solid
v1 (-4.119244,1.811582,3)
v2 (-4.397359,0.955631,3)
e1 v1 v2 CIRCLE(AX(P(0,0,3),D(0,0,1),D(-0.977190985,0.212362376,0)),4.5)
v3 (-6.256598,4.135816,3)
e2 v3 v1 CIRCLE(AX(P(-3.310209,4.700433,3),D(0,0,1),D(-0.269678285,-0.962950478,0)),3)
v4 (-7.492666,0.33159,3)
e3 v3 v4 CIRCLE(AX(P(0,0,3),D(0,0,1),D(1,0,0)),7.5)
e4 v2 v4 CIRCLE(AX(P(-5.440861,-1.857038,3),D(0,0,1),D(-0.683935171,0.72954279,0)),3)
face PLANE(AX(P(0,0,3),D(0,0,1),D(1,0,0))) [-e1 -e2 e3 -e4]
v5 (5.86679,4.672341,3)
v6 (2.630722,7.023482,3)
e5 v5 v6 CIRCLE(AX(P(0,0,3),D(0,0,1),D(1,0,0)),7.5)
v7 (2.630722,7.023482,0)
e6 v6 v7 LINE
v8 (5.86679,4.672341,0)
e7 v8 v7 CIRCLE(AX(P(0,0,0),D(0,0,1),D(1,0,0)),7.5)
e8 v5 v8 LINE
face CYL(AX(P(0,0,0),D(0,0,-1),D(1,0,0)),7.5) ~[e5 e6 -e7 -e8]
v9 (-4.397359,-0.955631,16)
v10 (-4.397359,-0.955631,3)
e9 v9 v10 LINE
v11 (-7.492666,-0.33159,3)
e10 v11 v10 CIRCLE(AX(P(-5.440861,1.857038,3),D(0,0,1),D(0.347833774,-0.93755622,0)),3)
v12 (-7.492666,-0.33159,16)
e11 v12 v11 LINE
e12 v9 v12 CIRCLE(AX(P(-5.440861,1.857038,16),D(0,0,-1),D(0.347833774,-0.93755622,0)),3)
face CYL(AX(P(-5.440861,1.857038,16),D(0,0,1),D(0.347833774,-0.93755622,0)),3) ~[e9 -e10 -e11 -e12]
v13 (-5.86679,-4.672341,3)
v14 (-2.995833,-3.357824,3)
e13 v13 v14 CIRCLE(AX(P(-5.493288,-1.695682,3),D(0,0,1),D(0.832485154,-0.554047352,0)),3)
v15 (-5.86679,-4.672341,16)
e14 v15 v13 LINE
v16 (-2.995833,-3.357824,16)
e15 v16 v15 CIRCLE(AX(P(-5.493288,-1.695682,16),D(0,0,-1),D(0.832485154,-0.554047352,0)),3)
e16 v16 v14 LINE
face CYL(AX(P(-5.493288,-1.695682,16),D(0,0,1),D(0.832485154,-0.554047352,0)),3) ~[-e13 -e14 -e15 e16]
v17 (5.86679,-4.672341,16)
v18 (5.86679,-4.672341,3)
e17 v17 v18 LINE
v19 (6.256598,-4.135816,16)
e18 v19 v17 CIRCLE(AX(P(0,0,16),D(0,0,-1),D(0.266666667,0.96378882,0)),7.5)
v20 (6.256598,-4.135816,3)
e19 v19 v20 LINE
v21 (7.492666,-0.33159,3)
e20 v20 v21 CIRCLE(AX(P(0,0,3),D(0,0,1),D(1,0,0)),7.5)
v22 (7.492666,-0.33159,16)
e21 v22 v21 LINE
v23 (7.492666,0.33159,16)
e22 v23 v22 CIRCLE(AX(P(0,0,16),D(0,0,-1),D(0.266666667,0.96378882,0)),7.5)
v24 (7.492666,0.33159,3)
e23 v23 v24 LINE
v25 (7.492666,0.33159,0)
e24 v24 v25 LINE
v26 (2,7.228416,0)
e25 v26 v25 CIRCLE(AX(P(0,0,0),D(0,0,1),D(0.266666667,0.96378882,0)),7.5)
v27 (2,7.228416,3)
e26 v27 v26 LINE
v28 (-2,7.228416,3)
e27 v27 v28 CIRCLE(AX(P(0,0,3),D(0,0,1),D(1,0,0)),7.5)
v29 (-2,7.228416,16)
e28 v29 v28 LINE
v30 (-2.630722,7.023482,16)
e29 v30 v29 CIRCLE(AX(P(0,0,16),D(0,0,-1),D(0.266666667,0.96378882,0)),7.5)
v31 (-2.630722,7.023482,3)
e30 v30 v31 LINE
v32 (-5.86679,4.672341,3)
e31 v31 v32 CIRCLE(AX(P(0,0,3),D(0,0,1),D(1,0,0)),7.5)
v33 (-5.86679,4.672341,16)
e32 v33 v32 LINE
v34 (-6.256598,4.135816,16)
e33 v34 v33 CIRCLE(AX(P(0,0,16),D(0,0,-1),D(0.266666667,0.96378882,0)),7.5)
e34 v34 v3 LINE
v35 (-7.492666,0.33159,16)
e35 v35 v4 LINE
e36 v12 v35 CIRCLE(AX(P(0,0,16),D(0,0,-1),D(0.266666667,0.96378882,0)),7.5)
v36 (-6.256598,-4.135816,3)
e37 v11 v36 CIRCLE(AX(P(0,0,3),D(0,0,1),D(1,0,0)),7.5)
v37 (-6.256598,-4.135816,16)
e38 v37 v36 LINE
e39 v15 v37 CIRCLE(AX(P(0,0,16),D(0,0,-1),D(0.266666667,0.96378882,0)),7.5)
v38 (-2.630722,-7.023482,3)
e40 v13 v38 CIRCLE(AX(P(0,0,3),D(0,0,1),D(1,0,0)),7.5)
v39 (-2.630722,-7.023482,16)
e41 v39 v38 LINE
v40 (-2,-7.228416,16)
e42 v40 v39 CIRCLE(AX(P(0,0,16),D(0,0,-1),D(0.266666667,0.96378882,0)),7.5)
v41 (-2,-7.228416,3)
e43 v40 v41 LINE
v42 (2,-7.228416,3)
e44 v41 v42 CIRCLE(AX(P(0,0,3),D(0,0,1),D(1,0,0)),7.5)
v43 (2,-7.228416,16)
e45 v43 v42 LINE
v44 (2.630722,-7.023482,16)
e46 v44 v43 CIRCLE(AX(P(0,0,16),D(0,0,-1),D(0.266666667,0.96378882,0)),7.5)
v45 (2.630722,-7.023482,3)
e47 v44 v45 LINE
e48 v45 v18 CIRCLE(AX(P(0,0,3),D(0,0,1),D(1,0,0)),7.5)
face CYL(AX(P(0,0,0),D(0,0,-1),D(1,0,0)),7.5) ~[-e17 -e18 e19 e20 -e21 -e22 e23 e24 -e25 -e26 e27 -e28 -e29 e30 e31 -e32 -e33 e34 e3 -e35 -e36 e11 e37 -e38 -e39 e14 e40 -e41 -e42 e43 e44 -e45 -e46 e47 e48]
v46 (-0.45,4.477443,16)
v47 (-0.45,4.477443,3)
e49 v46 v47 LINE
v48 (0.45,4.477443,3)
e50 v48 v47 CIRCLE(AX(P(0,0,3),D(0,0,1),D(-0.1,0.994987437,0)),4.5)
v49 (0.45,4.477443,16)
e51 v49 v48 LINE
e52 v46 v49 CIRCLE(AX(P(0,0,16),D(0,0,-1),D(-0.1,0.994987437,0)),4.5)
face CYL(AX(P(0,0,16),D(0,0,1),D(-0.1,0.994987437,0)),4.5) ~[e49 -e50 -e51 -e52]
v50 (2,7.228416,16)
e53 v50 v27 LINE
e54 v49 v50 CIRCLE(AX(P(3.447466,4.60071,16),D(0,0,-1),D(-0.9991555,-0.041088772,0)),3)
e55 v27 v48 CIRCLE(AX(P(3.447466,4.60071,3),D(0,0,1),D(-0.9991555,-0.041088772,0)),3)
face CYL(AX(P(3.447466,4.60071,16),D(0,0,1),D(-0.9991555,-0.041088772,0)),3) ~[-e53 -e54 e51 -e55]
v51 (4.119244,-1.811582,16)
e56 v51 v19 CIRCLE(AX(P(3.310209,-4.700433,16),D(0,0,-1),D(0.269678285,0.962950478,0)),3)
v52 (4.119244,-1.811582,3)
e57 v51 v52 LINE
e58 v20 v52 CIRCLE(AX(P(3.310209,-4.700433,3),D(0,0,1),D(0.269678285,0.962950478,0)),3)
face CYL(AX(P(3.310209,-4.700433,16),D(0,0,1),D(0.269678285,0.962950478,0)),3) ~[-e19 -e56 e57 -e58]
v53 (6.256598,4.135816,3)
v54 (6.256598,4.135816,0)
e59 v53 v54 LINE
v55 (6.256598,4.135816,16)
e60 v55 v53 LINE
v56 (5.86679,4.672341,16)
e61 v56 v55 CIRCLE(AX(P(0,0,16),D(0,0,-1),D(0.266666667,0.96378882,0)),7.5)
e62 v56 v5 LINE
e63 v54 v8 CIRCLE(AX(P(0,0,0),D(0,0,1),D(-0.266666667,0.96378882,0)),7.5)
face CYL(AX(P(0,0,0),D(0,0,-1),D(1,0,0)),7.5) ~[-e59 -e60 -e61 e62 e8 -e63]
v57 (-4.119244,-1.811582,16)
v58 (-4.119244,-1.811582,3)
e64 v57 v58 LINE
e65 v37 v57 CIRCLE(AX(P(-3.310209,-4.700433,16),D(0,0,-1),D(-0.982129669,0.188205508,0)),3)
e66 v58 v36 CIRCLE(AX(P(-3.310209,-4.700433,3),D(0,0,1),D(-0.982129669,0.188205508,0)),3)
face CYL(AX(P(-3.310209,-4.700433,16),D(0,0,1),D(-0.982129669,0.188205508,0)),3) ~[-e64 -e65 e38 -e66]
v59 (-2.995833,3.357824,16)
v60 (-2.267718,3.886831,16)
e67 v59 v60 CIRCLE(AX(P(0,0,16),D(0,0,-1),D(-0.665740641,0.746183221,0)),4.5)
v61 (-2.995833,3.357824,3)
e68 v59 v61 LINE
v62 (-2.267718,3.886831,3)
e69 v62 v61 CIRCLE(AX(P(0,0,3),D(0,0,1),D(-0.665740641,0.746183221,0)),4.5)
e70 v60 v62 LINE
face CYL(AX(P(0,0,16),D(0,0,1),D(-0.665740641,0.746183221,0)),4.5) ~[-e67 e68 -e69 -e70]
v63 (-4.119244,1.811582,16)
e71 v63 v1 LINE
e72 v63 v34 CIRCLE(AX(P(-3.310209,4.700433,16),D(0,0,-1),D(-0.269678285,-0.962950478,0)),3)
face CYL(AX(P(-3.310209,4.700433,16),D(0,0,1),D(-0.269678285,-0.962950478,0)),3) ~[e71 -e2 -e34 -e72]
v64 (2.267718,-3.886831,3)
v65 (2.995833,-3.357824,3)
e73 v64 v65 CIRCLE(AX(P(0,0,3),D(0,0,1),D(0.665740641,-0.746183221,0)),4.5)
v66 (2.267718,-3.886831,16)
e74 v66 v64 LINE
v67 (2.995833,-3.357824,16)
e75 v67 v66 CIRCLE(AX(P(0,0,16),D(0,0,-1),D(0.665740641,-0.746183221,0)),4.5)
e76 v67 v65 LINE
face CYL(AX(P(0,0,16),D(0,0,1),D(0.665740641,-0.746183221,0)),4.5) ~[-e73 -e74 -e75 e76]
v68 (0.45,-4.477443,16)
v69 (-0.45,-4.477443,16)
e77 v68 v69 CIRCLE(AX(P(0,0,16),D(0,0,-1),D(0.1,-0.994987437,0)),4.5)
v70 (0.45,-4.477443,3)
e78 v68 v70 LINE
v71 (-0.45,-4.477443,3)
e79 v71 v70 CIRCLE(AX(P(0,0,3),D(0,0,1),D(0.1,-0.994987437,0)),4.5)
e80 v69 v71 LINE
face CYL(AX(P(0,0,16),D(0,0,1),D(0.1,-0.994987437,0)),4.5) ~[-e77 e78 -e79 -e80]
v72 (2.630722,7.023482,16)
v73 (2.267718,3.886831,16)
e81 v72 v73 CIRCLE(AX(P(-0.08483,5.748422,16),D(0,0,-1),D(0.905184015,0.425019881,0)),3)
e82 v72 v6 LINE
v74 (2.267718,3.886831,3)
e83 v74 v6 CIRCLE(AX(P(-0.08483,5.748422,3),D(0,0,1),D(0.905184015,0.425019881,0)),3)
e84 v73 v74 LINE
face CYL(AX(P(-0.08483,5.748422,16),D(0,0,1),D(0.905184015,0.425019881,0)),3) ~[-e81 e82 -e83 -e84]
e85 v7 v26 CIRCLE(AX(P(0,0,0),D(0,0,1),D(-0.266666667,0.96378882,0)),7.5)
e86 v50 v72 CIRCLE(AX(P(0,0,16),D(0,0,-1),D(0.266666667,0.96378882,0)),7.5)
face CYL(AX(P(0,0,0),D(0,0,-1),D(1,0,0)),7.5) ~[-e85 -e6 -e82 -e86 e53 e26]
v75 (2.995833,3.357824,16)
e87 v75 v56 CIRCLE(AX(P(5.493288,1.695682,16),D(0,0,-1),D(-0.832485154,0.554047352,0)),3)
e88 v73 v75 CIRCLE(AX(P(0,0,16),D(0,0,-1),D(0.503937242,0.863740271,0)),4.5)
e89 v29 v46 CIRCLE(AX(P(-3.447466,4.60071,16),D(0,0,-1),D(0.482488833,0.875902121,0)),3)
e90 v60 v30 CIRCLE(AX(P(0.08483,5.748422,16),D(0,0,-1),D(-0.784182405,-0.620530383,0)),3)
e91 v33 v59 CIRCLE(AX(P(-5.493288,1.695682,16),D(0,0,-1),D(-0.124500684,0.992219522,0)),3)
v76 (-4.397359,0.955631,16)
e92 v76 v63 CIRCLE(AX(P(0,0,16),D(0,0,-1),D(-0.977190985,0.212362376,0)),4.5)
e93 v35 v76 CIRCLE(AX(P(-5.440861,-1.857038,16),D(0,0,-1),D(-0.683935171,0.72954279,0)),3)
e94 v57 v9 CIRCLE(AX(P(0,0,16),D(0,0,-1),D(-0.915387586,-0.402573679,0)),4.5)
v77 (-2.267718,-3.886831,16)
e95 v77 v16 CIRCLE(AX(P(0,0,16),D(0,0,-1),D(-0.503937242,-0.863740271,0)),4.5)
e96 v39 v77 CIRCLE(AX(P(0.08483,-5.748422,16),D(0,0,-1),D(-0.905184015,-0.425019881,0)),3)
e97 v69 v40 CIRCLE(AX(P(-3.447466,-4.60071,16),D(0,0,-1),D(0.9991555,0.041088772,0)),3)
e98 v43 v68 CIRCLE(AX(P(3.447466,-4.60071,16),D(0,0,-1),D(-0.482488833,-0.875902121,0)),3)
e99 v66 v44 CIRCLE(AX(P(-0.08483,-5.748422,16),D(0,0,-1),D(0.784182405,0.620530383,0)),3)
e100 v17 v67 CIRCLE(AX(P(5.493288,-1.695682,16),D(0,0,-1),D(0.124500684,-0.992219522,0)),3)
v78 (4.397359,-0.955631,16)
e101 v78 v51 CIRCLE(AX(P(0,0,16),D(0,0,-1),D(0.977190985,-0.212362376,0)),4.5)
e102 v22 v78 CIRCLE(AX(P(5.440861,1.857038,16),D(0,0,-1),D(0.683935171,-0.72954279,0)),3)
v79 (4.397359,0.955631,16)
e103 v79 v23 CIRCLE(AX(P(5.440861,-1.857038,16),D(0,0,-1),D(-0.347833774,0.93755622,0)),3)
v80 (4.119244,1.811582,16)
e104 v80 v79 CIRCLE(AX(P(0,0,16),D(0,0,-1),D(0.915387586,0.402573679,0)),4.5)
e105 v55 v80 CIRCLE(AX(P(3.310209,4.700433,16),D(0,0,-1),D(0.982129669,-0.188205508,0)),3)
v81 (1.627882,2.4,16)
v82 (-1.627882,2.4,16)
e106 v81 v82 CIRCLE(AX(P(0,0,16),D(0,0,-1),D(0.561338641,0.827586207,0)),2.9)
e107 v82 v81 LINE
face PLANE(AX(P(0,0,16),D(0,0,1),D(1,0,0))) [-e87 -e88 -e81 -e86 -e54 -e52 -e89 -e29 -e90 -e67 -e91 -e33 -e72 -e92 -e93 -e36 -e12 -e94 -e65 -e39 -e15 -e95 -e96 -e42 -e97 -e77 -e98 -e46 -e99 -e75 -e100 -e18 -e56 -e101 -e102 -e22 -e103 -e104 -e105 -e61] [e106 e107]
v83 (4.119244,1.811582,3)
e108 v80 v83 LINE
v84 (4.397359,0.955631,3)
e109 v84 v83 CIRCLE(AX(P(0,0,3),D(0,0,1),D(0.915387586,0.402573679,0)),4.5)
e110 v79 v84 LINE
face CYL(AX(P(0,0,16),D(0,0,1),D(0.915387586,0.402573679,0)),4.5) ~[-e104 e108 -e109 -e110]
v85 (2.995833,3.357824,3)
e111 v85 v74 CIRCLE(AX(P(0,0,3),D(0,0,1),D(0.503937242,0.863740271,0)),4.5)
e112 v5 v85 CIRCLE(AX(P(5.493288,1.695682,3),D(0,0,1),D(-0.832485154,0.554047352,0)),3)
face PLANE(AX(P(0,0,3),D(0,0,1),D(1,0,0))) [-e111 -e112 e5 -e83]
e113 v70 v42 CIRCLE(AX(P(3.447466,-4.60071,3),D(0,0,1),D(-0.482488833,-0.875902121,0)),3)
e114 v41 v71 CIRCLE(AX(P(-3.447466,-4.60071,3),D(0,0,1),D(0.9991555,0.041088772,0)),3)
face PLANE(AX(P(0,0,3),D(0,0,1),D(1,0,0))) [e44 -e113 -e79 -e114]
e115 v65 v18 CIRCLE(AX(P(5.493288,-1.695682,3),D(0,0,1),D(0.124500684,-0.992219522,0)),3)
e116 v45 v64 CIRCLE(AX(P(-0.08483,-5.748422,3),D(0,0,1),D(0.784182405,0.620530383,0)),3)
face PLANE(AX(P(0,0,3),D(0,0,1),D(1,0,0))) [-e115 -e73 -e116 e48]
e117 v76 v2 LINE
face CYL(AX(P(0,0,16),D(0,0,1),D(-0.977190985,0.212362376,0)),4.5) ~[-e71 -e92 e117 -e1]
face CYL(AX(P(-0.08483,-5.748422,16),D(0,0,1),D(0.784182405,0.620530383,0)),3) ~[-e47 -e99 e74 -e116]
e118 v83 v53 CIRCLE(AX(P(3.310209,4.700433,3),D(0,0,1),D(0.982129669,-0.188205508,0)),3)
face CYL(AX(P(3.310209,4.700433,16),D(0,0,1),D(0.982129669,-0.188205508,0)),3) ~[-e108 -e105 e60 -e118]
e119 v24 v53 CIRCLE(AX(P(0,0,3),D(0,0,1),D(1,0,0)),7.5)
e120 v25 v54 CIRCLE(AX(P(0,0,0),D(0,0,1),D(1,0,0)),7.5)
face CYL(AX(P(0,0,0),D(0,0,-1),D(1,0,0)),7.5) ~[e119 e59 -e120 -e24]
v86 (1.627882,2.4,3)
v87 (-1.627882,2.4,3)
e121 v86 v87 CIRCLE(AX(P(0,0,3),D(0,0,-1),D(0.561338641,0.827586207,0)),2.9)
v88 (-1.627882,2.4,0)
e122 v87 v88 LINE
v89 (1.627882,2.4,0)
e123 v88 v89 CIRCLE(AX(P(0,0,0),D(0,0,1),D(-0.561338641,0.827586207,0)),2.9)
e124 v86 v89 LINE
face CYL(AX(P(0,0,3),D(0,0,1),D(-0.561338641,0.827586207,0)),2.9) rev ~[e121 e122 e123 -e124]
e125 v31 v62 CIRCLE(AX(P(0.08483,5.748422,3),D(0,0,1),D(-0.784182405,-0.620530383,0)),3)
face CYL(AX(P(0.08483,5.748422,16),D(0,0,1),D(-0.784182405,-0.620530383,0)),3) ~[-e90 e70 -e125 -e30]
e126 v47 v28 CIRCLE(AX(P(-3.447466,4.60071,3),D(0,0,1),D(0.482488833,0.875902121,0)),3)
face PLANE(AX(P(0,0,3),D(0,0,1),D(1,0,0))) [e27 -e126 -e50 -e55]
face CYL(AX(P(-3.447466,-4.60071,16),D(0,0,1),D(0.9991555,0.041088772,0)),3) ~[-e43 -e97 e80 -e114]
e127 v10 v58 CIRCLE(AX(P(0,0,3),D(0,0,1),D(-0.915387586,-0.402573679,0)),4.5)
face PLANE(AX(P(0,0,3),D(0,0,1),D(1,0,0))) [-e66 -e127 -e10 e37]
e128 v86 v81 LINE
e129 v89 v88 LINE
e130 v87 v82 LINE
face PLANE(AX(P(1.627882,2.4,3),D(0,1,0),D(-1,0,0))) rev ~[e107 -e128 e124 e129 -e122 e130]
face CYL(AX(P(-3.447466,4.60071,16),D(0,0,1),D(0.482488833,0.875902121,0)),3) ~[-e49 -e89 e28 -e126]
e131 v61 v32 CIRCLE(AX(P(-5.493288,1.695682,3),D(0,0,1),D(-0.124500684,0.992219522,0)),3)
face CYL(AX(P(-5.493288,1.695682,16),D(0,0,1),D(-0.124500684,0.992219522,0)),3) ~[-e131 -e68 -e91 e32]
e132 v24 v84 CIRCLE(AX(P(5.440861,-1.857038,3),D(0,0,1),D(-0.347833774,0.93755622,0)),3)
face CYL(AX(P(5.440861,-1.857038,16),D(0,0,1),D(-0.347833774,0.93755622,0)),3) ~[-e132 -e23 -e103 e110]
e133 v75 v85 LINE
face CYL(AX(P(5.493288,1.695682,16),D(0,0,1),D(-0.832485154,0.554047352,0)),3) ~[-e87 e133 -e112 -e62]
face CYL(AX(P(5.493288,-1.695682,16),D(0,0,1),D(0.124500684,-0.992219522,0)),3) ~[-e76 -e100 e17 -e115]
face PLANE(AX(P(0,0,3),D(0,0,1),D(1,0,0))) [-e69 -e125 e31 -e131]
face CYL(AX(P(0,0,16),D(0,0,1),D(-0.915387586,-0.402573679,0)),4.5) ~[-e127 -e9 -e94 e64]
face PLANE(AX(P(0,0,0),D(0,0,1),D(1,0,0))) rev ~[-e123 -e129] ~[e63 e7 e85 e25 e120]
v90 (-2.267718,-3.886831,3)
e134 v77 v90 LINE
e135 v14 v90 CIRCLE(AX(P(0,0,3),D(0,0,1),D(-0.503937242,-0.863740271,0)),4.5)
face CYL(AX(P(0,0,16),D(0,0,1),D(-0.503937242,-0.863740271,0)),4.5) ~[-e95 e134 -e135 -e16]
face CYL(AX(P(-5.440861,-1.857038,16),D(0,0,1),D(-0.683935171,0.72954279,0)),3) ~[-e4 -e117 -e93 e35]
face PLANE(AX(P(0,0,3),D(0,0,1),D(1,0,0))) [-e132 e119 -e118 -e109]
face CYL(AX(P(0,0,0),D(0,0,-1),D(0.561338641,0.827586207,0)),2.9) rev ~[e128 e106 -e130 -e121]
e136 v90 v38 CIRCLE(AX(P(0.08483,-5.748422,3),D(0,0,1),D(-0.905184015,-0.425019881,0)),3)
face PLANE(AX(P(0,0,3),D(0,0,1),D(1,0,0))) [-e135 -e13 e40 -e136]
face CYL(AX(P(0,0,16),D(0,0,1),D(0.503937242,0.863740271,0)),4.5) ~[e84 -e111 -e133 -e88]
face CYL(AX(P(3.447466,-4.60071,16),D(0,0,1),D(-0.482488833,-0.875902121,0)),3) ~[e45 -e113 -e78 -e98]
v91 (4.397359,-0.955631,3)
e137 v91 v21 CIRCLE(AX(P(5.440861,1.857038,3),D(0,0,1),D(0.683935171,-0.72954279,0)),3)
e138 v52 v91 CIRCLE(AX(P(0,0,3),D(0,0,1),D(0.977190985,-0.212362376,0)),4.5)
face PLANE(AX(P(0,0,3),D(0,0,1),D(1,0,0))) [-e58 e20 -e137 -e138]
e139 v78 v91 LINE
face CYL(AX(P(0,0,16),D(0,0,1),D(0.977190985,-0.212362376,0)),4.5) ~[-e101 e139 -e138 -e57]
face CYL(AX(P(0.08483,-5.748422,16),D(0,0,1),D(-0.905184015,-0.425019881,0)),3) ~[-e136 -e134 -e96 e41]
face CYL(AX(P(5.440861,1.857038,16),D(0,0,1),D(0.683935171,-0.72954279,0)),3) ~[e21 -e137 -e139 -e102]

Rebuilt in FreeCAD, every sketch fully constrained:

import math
import FreeCAD as App
import Part
import Sketcher

doc = App.newDocument("Part")
params = doc.addObject("Spreadsheet::Sheet", "Params")
for row, (alias, value) in enumerate([
    ("sketch1_diameter", "15 mm"),
    ("sketch1_radius", "2.9 mm"),
    ("pad1_length", "16 mm"),
    ("sketch2_radius", "3 mm"),
    ("sketch2_radius2", "7.5 mm"),
    ("sketch2_radius3", "4.5 mm"),
    ("sketch3_diameter", "15 mm"),
    ("pad2_length", "3 mm"),
    ("sketch4_radius", "2.9 mm"),
], start=1):
    params.set(f"A{row}", alias)
    params.set(f"B{row}", "=" + value)
    params.setAlias(f"B{row}", alias)

body = doc.addObject("PartDesign::Body", "Body")

# Sketch on XY plane
sketch1 = doc.addObject("Sketcher::SketchObject", "Sketch")
body.addObject(sketch1)
sketch1.AttachmentSupport = (doc.XY_Plane, [""])
sketch1.MapMode = "FlatFace"
sketch1.addGeometry(Part.Circle(App.Vector(0, 0, 0), App.Vector(0, 0, 1), 7.5), False)
sketch1.addGeometry(Part.LineSegment(App.Vector(-1.6, 2.4, 0), App.Vector(1.6, 2.4, 0)), False)
sketch1.addGeometry(Part.ArcOfCircle(Part.Circle(App.Vector(0, 0, 0), App.Vector(0, 0, 1), 2.9), math.radians(124), math.radians(416)), False)
sketch1.addConstraint(Sketcher.Constraint("Coincident", 1, 1, 2, 1))
sketch1.addConstraint(Sketcher.Constraint("Coincident", 2, 2, 1, 2))
sketch1.addConstraint(Sketcher.Constraint("Horizontal", 1))
sketch1.addConstraint(Sketcher.Constraint("Coincident", 0, 3, -1, 1))
sketch1.addConstraint(Sketcher.Constraint("Coincident", 2, 3, -1, 1))
sketch1.addConstraint(Sketcher.Constraint("Diameter", 0, 15.0))
sketch1.addConstraint(Sketcher.Constraint("Radius", 2, 2.9))
sketch1.addConstraint(Sketcher.Constraint("DistanceY", -1, 1, 1, 1, 2.4))
sketch1.setExpression("Constraints[5]", "Params.sketch1_diameter")
sketch1.setExpression("Constraints[6]", "Params.sketch1_radius")
pad1 = doc.addObject("PartDesign::Pad", "Pad")
body.addObject(pad1)
pad1.Profile = sketch1
pad1.setExpression("Length", "Params.pad1_length")

# Sketch on XY plane
sketch2 = doc.addObject("Sketcher::SketchObject", "Sketch001")
body.addObject(sketch2)
sketch2.AttachmentSupport = (doc.XY_Plane, [""])
sketch2.MapMode = "FlatFace"
sketch2.AttachmentOffset = App.Placement(App.Vector(0, 0, 16), App.Rotation())
sketch2.addGeometry(Part.ArcOfCircle(Part.Circle(App.Vector(3.4, 4.6, 0), App.Vector(0, 0, 1), 3), math.radians(119), math.radians(182)), False)
sketch2.addGeometry(Part.ArcOfCircle(Part.Circle(App.Vector(0, 0, 0), App.Vector(0, 0, 1), 7.5), math.radians(75), math.radians(105)), False)
sketch2.addGeometry(Part.ArcOfCircle(Part.Circle(App.Vector(-3.4, 4.6, 0), App.Vector(0, 0, 1), 3), math.radians(-2), math.radians(61)), False)
sketch2.addGeometry(Part.ArcOfCircle(Part.Circle(App.Vector(0, 0, 0), App.Vector(0, 0, 1), 4.5), math.radians(84.26), math.radians(95.74)), False)
sketch2.addConstraint(Sketcher.Constraint("Coincident", 0, 1, 1, 1))
sketch2.addConstraint(Sketcher.Constraint("Coincident", 1, 2, 2, 2))
sketch2.addConstraint(Sketcher.Constraint("Coincident", 2, 1, 3, 2))
sketch2.addConstraint(Sketcher.Constraint("Coincident", 3, 1, 0, 2))
sketch2.addConstraint(Sketcher.Constraint("Coincident", 1, 3, -1, 1))
sketch2.addConstraint(Sketcher.Constraint("Coincident", 3, 3, -1, 1))
sketch2.addConstraint(Sketcher.Constraint("Equal", 0, 2))
sketch2.addConstraint(Sketcher.Constraint("Symmetric", 0, 3, 2, 3, -2))
sketch2.addConstraint(Sketcher.Constraint("Radius", 0, 3.0))
sketch2.addConstraint(Sketcher.Constraint("Radius", 1, 7.5))
sketch2.addConstraint(Sketcher.Constraint("Radius", 3, 4.5))
sketch2.addConstraint(Sketcher.Constraint("DistanceX", -1, 1, 0, 1, 2.0))
sketch2.addConstraint(Sketcher.Constraint("DistanceX", 2, 1, 3, 1, 0.9))
sketch2.setExpression("Constraints[8]", "Params.sketch2_radius")
sketch2.setExpression("Constraints[9]", "Params.sketch2_radius2")
sketch2.setExpression("Constraints[10]", "Params.sketch2_radius3")
pocket1 = doc.addObject("PartDesign::Pocket", "Pocket")
body.addObject(pocket1)
pocket1.Profile = sketch2
pocket1.Type = "ThroughAll"
doc.recompute()

polarpattern = doc.addObject("PartDesign::PolarPattern", "PolarPattern")
body.addObject(polarpattern)
polarpattern.Originals = [pocket1]
polarpattern.Axis = (doc.Z_Axis, [""])
polarpattern.Angle = 360
polarpattern.Occurrences = 10
body.Tip = polarpattern

# Sketch on XY plane
sketch3 = doc.addObject("Sketcher::SketchObject", "Sketch002")
body.addObject(sketch3)
sketch3.AttachmentSupport = (doc.XY_Plane, [""])
sketch3.MapMode = "FlatFace"
sketch3.addGeometry(Part.Circle(App.Vector(0, 0, 0), App.Vector(0, 0, 1), 8), False)
sketch3.addConstraint(Sketcher.Constraint("Coincident", 0, 3, -1, 1))
sketch3.addConstraint(Sketcher.Constraint("Diameter", 0, 15.0))
sketch3.setExpression("Constraints[1]", "Params.sketch3_diameter")
pad2 = doc.addObject("PartDesign::Pad", "Pad001")
body.addObject(pad2)
pad2.Profile = sketch3
pad2.setExpression("Length", "Params.pad2_length")

# Sketch on XY plane
sketch4 = doc.addObject("Sketcher::SketchObject", "Sketch003")
body.addObject(sketch4)
sketch4.AttachmentSupport = (doc.XY_Plane, [""])
sketch4.MapMode = "FlatFace"
sketch4.AttachmentOffset = App.Placement(App.Vector(0, 0, 3), App.Rotation())
sketch4.addGeometry(Part.LineSegment(App.Vector(1.6, 2.4, 0), App.Vector(-1.6, 2.4, 0)), False)
sketch4.addGeometry(Part.ArcOfCircle(Part.Circle(App.Vector(0, 0, 0), App.Vector(0, 0, 1), 2.9), math.radians(124), math.radians(416)), False)
sketch4.addConstraint(Sketcher.Constraint("Coincident", 0, 1, 1, 2))
sketch4.addConstraint(Sketcher.Constraint("Coincident", 1, 1, 0, 2))
sketch4.addConstraint(Sketcher.Constraint("Horizontal", 0))
sketch4.addConstraint(Sketcher.Constraint("Coincident", 1, 3, -1, 1))
sketch4.addConstraint(Sketcher.Constraint("Radius", 1, 2.9))
sketch4.addConstraint(Sketcher.Constraint("DistanceY", -1, 1, 0, 1, 2.4))
sketch4.setExpression("Constraints[4]", "Params.sketch4_radius")
pocket2 = doc.addObject("PartDesign::Pocket", "Pocket001")
body.addObject(pocket2)
pocket2.Profile = sketch4
pocket2.Type = "ThroughAll"

doc.recompute()
